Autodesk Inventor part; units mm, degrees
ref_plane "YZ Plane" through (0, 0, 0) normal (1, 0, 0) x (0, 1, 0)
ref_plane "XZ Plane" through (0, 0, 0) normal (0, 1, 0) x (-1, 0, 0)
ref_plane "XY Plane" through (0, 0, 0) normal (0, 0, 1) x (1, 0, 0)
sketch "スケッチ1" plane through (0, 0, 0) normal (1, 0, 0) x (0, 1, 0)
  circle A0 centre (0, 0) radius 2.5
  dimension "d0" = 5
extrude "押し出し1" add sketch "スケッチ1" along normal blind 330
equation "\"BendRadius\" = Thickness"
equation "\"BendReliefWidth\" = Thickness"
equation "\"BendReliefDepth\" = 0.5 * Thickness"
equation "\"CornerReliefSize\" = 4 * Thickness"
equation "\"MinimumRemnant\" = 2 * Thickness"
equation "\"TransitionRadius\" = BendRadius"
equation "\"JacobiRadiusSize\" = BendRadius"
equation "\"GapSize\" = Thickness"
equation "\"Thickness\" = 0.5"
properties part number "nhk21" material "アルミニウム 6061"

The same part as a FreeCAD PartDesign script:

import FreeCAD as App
import Part
import Sketcher
from FreeCAD import Vector

doc = App.newDocument("Part")
params = doc.addObject("Spreadsheet::Sheet", "Params")
for row, (alias, value) in enumerate([
    ("sketch1_diameter", "5 mm"),
    ("pad1_length", "330 mm"),
], start=1):
    params.set(f"A{row}", alias)
    params.set(f"B{row}", "=" + value)
    params.setAlias(f"B{row}", alias)

body = doc.addObject("PartDesign::Body", "Body")

# Sketch on YZ plane
sketch1 = body.newObject("Sketcher::SketchObject", "Sketch")
sketch1.AttachmentSupport = (doc.getObject("YZ_Plane"), [""])
sketch1.MapMode = "FlatFace"
sketch1.addGeometry(Part.Circle(Vector(0, 0, 0), Vector(0, 0, 1), 2.5), False)
sketch1.addConstraint(Sketcher.Constraint("Coincident", 0, 3, -1, 1))
sketch1.addConstraint(Sketcher.Constraint("Diameter", 0, 5.0))
sketch1.setExpression("Constraints[1]", "Params.sketch1_diameter")
pad1 = body.newObject("PartDesign::Pad", "Pad")
pad1.Profile = sketch1
pad1.setExpression("Length", "Params.pad1_length")

doc.recompute()
